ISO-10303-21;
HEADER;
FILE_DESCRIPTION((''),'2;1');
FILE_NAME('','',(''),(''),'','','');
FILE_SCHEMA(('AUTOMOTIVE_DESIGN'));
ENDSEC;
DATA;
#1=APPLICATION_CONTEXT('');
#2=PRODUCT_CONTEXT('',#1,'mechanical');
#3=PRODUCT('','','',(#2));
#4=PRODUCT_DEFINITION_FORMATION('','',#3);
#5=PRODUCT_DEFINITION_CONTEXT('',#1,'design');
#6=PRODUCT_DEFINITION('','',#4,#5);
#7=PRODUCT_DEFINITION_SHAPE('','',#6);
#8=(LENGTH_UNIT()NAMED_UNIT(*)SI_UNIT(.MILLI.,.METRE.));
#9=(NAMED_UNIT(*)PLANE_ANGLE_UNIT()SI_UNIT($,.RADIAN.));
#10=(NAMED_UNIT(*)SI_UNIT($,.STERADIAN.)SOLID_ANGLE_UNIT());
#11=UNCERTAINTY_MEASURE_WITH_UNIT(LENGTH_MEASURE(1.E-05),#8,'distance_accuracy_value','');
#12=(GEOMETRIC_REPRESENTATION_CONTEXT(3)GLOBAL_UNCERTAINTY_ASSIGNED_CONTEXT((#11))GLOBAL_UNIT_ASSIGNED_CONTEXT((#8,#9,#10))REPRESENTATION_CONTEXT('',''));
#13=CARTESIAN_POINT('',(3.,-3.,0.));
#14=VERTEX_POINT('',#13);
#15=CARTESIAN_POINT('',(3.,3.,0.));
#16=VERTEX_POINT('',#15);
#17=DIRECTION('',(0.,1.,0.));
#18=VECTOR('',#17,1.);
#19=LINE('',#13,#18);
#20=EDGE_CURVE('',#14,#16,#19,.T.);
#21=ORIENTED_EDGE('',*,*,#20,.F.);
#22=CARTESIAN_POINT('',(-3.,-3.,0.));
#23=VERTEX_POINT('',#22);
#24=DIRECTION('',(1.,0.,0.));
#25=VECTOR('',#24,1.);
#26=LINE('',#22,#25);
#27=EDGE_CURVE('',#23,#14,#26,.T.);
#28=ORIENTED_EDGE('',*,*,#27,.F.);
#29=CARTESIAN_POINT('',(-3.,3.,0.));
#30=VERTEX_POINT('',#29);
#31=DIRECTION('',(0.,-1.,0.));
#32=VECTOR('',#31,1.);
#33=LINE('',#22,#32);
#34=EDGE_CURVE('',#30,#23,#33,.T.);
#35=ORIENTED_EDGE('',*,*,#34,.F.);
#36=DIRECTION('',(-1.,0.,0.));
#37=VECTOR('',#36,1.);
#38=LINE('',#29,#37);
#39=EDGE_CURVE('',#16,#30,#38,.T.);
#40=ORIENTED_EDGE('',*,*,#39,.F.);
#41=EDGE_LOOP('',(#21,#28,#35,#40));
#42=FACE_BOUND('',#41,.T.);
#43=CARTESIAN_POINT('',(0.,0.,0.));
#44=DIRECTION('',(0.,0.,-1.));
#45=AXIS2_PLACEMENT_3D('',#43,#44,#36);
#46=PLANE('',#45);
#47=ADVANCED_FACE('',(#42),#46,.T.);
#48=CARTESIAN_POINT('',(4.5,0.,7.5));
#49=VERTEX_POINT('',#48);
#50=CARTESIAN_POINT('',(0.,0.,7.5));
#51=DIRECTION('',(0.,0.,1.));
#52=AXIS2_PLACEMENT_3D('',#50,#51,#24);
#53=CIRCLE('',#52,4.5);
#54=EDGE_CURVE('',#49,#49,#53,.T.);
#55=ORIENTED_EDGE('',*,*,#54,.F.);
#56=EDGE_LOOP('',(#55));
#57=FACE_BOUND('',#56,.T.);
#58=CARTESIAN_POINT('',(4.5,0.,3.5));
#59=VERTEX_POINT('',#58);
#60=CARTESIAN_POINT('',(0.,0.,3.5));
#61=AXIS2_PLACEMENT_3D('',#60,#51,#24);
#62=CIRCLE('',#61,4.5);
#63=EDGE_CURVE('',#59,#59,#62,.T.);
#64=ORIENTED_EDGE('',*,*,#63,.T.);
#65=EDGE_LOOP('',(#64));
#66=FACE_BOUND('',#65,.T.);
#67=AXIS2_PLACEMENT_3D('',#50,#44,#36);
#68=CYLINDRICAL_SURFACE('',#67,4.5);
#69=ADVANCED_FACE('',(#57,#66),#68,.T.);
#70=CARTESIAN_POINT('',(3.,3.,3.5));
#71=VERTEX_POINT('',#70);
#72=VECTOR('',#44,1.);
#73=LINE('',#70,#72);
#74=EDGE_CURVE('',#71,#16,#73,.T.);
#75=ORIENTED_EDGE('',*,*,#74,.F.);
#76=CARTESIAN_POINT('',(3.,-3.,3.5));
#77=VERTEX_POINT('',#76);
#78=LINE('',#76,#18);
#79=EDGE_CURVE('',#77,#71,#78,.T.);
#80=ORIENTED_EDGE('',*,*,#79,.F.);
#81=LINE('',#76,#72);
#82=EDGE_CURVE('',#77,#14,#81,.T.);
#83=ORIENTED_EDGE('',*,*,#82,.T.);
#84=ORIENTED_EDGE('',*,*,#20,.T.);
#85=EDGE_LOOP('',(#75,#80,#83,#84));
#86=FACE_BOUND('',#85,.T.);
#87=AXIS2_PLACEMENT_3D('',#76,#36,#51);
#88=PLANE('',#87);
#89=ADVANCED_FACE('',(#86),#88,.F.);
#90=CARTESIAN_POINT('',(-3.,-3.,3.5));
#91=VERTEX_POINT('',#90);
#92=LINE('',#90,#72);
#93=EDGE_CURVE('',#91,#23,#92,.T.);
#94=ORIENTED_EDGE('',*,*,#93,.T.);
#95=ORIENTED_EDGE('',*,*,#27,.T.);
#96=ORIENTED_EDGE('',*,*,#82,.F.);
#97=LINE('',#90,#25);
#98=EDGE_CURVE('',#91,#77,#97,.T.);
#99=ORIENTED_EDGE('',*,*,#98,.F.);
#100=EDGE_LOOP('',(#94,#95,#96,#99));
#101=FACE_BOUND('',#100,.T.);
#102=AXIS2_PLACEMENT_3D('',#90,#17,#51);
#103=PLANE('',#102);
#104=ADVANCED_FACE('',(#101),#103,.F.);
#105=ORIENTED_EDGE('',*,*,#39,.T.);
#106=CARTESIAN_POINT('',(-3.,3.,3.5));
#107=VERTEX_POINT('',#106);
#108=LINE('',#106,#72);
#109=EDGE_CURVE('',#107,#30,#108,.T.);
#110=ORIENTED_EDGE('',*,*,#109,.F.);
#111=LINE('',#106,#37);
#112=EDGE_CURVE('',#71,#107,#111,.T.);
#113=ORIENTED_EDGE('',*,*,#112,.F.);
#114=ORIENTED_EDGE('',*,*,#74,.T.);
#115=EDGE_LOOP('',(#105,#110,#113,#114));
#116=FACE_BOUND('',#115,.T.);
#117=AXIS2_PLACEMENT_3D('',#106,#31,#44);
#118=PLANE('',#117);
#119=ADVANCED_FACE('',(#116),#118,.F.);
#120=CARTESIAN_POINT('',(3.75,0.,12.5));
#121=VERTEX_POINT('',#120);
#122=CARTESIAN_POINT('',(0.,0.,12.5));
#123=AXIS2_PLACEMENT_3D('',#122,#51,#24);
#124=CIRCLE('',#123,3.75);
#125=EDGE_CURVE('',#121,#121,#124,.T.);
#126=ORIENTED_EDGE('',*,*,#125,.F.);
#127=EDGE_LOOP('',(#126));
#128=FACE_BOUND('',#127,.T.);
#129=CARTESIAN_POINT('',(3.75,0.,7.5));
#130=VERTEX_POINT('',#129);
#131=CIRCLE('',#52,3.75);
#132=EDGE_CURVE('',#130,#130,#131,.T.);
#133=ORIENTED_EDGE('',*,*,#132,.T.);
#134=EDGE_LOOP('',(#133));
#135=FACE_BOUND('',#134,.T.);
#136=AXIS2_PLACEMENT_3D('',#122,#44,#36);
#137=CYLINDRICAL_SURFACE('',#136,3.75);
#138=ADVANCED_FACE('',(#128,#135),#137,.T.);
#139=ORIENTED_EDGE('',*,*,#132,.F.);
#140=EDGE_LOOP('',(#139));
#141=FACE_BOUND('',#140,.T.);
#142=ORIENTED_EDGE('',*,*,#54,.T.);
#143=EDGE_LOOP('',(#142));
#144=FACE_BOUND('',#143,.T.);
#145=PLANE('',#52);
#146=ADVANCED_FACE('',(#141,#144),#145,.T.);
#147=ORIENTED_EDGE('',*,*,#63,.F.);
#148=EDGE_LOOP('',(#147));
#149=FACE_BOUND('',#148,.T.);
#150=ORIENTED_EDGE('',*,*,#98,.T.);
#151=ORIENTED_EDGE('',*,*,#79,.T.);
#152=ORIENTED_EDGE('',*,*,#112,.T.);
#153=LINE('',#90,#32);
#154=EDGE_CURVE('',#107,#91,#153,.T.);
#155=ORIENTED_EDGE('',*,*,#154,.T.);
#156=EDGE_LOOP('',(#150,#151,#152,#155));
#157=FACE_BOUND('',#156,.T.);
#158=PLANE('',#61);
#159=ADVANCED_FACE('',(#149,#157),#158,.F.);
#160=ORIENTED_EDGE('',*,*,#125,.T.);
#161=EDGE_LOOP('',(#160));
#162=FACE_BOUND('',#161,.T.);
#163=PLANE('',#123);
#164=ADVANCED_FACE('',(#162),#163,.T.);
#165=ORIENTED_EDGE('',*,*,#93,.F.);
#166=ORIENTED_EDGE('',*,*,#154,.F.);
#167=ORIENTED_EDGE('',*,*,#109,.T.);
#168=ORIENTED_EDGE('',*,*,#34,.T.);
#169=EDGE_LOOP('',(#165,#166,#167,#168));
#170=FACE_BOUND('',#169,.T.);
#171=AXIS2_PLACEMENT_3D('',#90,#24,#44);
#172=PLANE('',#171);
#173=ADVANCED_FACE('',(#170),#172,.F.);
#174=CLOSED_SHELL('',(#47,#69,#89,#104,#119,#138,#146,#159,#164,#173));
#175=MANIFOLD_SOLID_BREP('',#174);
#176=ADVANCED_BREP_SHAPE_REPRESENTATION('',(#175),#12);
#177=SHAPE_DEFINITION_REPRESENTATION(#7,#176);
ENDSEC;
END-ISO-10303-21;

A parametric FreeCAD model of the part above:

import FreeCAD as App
import Part
import Sketcher

V = App.Vector
Q = App.Units.Quantity


def add_polygon(sketch, points):
    """Adds a closed chain of lines whose ends are joined by coincident constraints."""
    first, n = sketch.GeometryCount, len(points)
    for a, b in zip(points, points[1:] + points[:1]):
        sketch.addGeometry(Part.LineSegment(App.Vector(*a, 0), App.Vector(*b, 0)), False)
    for i in range(n):
        sketch.addConstraint(Sketcher.Constraint("Coincident", first + i, 2, first + (i + 1) % n, 1))

doc = App.newDocument("Part")
body = doc.addObject("PartDesign::Body", "Body")

# Sketch on XY plane
sketch1 = body.newObject("Sketcher::SketchObject", "Sketch")
sketch1.AttachmentSupport = (doc.getObject("XY_Plane"), [""])
sketch1.MapMode = "FlatFace"
add_polygon(sketch1, [(-3, 3), (-3, -3), (3, -3), (3, 3)])  # lines 0-3
sketch1.addConstraint([
    Sketcher.Constraint("Vertical", 0),
    Sketcher.Constraint("Horizontal", 1),
    Sketcher.Constraint("Vertical", 2),
    Sketcher.Constraint("Horizontal", 3),
    Sketcher.Constraint("Symmetric", 0, 2, 2, 2, -1, 1),
    Sketcher.Constraint("Equal", 3, 0),
    Sketcher.Constraint("DistanceX", 1, 1, 1, 2, Q("6 mm")),
])
pad1 = body.newObject("PartDesign::Pad", "Pad")
pad1.Profile = sketch1
pad1.Length = 3.5

# Sketch on XY plane
sketch2 = body.newObject("Sketcher::SketchObject", "Sketch001")
sketch2.AttachmentSupport = (doc.getObject("XY_Plane"), [""])
sketch2.MapMode = "FlatFace"
sketch2.AttachmentOffset = App.Placement(V(0, 0, 3.5), App.Rotation())
sketch2.addGeometry(Part.Circle(V(0, 0, 0), V(0, 0, 1), 4.5), False)
sketch2.addConstraint([
    Sketcher.Constraint("Coincident", 0, 3, -1, 1),
    Sketcher.Constraint("Diameter", 0, Q("9 mm")),
])
pad2 = body.newObject("PartDesign::Pad", "Pad001")
pad2.Profile = sketch2
pad2.Length = 4

# Sketch on XY plane
sketch3 = body.newObject("Sketcher::SketchObject", "Sketch002")
sketch3.AttachmentSupport = (doc.getObject("XY_Plane"), [""])
sketch3.MapMode = "FlatFace"
sketch3.AttachmentOffset = App.Placement(V(0, 0, 7.5), App.Rotation())
sketch3.addGeometry(Part.Circle(V(0, 0, 0), V(0, 0, 1), 3.8), False)
sketch3.addConstraint([
    Sketcher.Constraint("Coincident", 0, 3, -1, 1),
    Sketcher.Constraint("Diameter", 0, Q("7.5 mm")),
])
pad3 = body.newObject("PartDesign::Pad", "Pad002")
pad3.Profile = sketch3
pad3.Length = 5

doc.recompute()
